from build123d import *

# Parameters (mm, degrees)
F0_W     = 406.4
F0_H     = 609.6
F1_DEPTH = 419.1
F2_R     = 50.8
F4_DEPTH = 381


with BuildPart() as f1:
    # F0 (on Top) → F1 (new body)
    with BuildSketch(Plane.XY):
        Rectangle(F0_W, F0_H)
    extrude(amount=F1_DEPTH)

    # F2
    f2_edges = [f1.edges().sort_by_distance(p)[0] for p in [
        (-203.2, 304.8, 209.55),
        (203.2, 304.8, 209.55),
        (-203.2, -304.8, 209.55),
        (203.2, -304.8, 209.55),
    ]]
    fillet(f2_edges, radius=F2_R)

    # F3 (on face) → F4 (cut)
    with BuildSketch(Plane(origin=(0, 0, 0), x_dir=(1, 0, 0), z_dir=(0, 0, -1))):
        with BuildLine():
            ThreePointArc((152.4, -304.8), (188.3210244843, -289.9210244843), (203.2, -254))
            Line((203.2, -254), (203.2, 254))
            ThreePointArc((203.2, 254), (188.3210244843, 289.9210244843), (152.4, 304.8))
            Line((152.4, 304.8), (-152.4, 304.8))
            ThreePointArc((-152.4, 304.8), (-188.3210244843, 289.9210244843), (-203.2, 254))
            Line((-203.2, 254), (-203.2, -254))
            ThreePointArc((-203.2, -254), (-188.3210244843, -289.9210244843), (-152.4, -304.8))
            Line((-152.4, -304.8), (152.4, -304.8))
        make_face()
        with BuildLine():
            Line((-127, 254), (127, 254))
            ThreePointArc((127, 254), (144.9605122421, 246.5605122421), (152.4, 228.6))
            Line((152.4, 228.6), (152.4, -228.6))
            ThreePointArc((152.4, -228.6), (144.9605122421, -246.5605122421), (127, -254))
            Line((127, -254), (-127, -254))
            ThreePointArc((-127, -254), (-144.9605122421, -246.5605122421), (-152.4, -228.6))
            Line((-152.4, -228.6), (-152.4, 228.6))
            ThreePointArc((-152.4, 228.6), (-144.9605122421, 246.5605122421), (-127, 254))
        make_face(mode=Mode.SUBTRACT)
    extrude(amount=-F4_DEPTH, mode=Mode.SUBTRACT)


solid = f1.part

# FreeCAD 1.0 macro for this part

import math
import FreeCAD as App
import Part
import Sketcher
Q = App.Units.Quantity


def edges_at(feature, points):
    """Names of the edges that pass closest to the given points."""
    edges = feature.Shape.Edges
    near = lambda p: min(range(len(edges)), key=lambda i: edges[i].distToShape(Part.Vertex(*p))[0])
    return sorted({f"Edge{near(p) + 1}" for p in points})

doc = App.newDocument("Part")
body = doc.addObject("PartDesign::Body", "Body")

# Sketch on XY plane
sketch1 = doc.addObject("Sketcher::SketchObject", "Sketch")
body.addObject(sketch1)
sketch1.AttachmentSupport = (doc.XY_Plane, [""])
sketch1.MapMode = "FlatFace"
sketch1.addGeometry([
    Part.LineSegment(App.Vector(-203.2, 304.8, 0), App.Vector(-203.2, -304.8, 0)),
    Part.LineSegment(App.Vector(-203.2, -304.8, 0), App.Vector(203.2, -304.8, 0)),
    Part.LineSegment(App.Vector(203.2, -304.8, 0), App.Vector(203.2, 304.8, 0)),
    Part.LineSegment(App.Vector(203.2, 304.8, 0), App.Vector(-203.2, 304.8, 0)),
], False)
sketch1.addConstraint([
    Sketcher.Constraint("Coincident", 0, 2, 1, 1),
    Sketcher.Constraint("Coincident", 1, 2, 2, 1),
    Sketcher.Constraint("Coincident", 2, 2, 3, 1),
    Sketcher.Constraint("Coincident", 3, 2, 0, 1),
    Sketcher.Constraint("Vertical", 0),
    Sketcher.Constraint("Horizontal", 1),
    Sketcher.Constraint("Vertical", 2),
    Sketcher.Constraint("Horizontal", 3),
    Sketcher.Constraint("Symmetric", 0, 2, 2, 2, -1, 1),
    Sketcher.Constraint("DistanceX", 1, 1, 1, 2, Q("16 in")),
    Sketcher.Constraint("DistanceY", 0, 2, 0, 1, Q("24 in")),
])
pad1 = doc.addObject("PartDesign::Pad", "Pad")
body.addObject(pad1)
pad1.Profile = sketch1
pad1.Length = Q("16.5 in")
doc.recompute()

fillet = doc.addObject("PartDesign::Fillet", "Fillet")
body.addObject(fillet)
fillet.Base = (pad1, edges_at(pad1, [
    (-203.2, 304.8, 209.55),
    (203.2, 304.8, 209.55),
    (-203.2, -304.8, 209.55),
    (203.2, -304.8, 209.55),
]))
fillet.Radius = Q("2 in")

# Sketch on XY plane
sketch2 = doc.addObject("Sketcher::SketchObject", "Sketch001")
body.addObject(sketch2)
sketch2.AttachmentSupport = (doc.XY_Plane, [""])
sketch2.MapMode = "FlatFace"
sketch2.addGeometry([
    Part.ArcOfCircle(Part.Circle(App.Vector(152.4, 254, 0), App.Vector(0, 0, 1), 50.8), math.radians(0), math.radians(90)),  # 0
    Part.LineSegment(App.Vector(203.2, 254, 0), App.Vector(203.2, -254, 0)),  # 1
    Part.ArcOfCircle(Part.Circle(App.Vector(152.4, -254, 0), App.Vector(0, 0, 1), 50.8), math.radians(-90), math.radians(0)),  # 2
    Part.LineSegment(App.Vector(152.4, -304.8, 0), App.Vector(-152.4, -304.8, 0)),  # 3
    Part.ArcOfCircle(Part.Circle(App.Vector(-152.4, -254, 0), App.Vector(0, 0, 1), 50.8), math.radians(180), math.radians(270)),  # 4
    Part.LineSegment(App.Vector(-203.2, -254, 0), App.Vector(-203.2, 254, 0)),  # 5
    Part.ArcOfCircle(Part.Circle(App.Vector(-152.4, 254, 0), App.Vector(0, 0, 1), 50.8), math.radians(90), math.radians(180)),  # 6
    Part.LineSegment(App.Vector(-152.4, 304.8, 0), App.Vector(152.4, 304.8, 0)),  # 7
    Part.ArcOfCircle(Part.Circle(App.Vector(-127, -228.6, 0), App.Vector(0, 0, 1), 25.4), math.radians(180), math.radians(270)),  # 8
    Part.LineSegment(App.Vector(-127, -254, 0), App.Vector(127, -254, 0)),  # 9
    Part.ArcOfCircle(Part.Circle(App.Vector(127, -228.6, 0), App.Vector(0, 0, 1), 25.4), math.radians(-90), math.radians(0)),  # 10
    Part.LineSegment(App.Vector(152.4, -228.6, 0), App.Vector(152.4, 228.6, 0)),  # 11
    Part.ArcOfCircle(Part.Circle(App.Vector(127, 228.6, 0), App.Vector(0, 0, 1), 25.4), math.radians(0), math.radians(90)),  # 12
    Part.LineSegment(App.Vector(127, 254, 0), App.Vector(-127, 254, 0)),  # 13
    Part.ArcOfCircle(Part.Circle(App.Vector(-127, 228.6, 0), App.Vector(0, 0, 1), 25.4), math.radians(90), math.radians(180)),  # 14
    Part.LineSegment(App.Vector(-152.4, 228.6, 0), App.Vector(-152.4, -228.6, 0)),  # 15
], False)
sketch2.addConstraint([
    Sketcher.Constraint("Tangent", 0, 1, 1, 1),
    Sketcher.Constraint("Tangent", 1, 2, 2, 2),
    Sketcher.Constraint("Tangent", 2, 1, 3, 1),
    Sketcher.Constraint("Tangent", 3, 2, 4, 2),
    Sketcher.Constraint("Tangent", 4, 1, 5, 1),
    Sketcher.Constraint("Tangent", 5, 2, 6, 2),
    Sketcher.Constraint("Tangent", 6, 1, 7, 1),
    Sketcher.Constraint("Tangent", 7, 2, 0, 2),
    Sketcher.Constraint("Tangent", 8, 2, 9, 1),
    Sketcher.Constraint("Tangent", 9, 2, 10, 1),
    Sketcher.Constraint("Tangent", 10, 2, 11, 1),
    Sketcher.Constraint("Tangent", 11, 2, 12, 1),
    Sketcher.Constraint("Tangent", 12, 2, 13, 1),
    Sketcher.Constraint("Tangent", 13, 2, 14, 1),
    Sketcher.Constraint("Tangent", 14, 2, 15, 1),
    Sketcher.Constraint("Tangent", 15, 2, 8, 1),
    Sketcher.Constraint("Vertical", 1),
    Sketcher.Constraint("Horizontal", 3),
    Sketcher.Constraint("Vertical", 5),
    Sketcher.Constraint("Horizontal", 7),
    Sketcher.Constraint("Horizontal", 9),
    Sketcher.Constraint("Vertical", 11),
    Sketcher.Constraint("Horizontal", 13),
    Sketcher.Constraint("Vertical", 15),
    Sketcher.Constraint("Equal", 0, 2),
    Sketcher.Constraint("Equal", 2, 4),
    Sketcher.Constraint("Equal", 4, 6),
    Sketcher.Constraint("Equal", 8, 10),
    Sketcher.Constraint("Equal", 10, 12),
    Sketcher.Constraint("Equal", 12, 14),
    Sketcher.Constraint("Symmetric", 0, 3, 4, 3, -1, 1),
    Sketcher.Constraint("Symmetric", 8, 3, 12, 3, -1, 1),
    Sketcher.Constraint("Horizontal", 4, 1, 8, 2),
    Sketcher.Constraint("Vertical", 7, 2, 10, 2),
    Sketcher.Constraint("Radius", 0, Q("2 in")),
    Sketcher.Constraint("Radius", 8, Q("1 in")),
    Sketcher.Constraint("DistanceX", 3, 2, 3, 1, Q("12 in")),
    Sketcher.Constraint("DistanceY", 1, 2, 1, 1, Q("20 in")),
])
pocket1 = doc.addObject("PartDesign::Pocket", "Pocket")
body.addObject(pocket1)
pocket1.Profile = sketch2
pocket1.Length = Q("15 in")
pocket1.Reversed = True

doc.recompute()
